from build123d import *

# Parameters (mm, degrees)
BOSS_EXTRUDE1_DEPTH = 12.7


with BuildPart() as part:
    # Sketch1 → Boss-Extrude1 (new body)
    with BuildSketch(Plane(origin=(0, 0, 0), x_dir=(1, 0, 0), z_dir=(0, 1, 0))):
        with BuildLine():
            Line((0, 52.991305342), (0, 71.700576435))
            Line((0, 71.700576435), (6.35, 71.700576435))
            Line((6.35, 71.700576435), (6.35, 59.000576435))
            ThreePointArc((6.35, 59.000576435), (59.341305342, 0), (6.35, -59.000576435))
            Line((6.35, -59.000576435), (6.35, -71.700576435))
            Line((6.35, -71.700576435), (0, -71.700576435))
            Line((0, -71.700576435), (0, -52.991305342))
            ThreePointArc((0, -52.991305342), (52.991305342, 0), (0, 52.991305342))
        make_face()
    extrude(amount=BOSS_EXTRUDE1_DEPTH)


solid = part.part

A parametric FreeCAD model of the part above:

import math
import FreeCAD as App
import Part
import Sketcher
Q = App.Units.Quantity

doc = App.newDocument("Part")
body = doc.addObject("PartDesign::Body", "Body")

# Sketch on XZ plane
sketch1 = doc.addObject("Sketcher::SketchObject", "Sketch")
body.addObject(sketch1)
sketch1.AttachmentSupport = (doc.XZ_Plane, [""])
sketch1.MapMode = "FlatFace"
sketch1.addGeometry([
    Part.LineSegment(App.Vector(0, -72, 0), App.Vector(0, -53, 0)),  # 0
    Part.ArcOfCircle(Part.Circle(App.Vector(0, 0, 0), App.Vector(0, 0, 1), 53), math.radians(-90), math.radians(90)),  # 1
    Part.LineSegment(App.Vector(0, 53, 0), App.Vector(0, 72, 0)),  # 2
    Part.LineSegment(App.Vector(0, 72, 0), App.Vector(6, 72, 0)),  # 3
    Part.LineSegment(App.Vector(6, 72, 0), App.Vector(6, 59, 0)),  # 4
    Part.ArcOfCircle(Part.Circle(App.Vector(0, 0, 0), App.Vector(0, 0, 1), 59), math.radians(-84), math.radians(84)),  # 5
    Part.LineSegment(App.Vector(6, -59, 0), App.Vector(6, -72, 0)),  # 6
    Part.LineSegment(App.Vector(6, -72, 0), App.Vector(0, -72, 0)),  # 7
], False)
sketch1.addConstraint([
    Sketcher.Constraint("Coincident", 0, 2, 1, 1),
    Sketcher.Constraint("Coincident", 1, 2, 2, 1),
    Sketcher.Constraint("Coincident", 2, 2, 3, 1),
    Sketcher.Constraint("Coincident", 3, 2, 4, 1),
    Sketcher.Constraint("Coincident", 4, 2, 5, 2),
    Sketcher.Constraint("Coincident", 5, 1, 6, 1),
    Sketcher.Constraint("Coincident", 6, 2, 7, 1),
    Sketcher.Constraint("Coincident", 7, 2, 0, 1),
    Sketcher.Constraint("Vertical", 0),
    Sketcher.Constraint("Vertical", 2),
    Sketcher.Constraint("Horizontal", 3),
    Sketcher.Constraint("Vertical", 4),
    Sketcher.Constraint("Vertical", 6),
    Sketcher.Constraint("Horizontal", 7),
    Sketcher.Constraint("Coincident", 1, 3, -1, 1),
    Sketcher.Constraint("Coincident", 5, 3, -1, 1),
    Sketcher.Constraint("Symmetric", 2, 2, 7, 2, -1, 1),
    Sketcher.Constraint("PointOnObject", 0, 2, -2),
    Sketcher.Constraint("Vertical", 4, 2, 5, 1),
    Sketcher.Constraint("DistanceY", 4, 2, 4, 1, Q("0.5 in")),
    Sketcher.Constraint("DistanceX", 3, 1, 3, 2, Q("0.25 in")),
    Sketcher.Constraint("Radius", 1, Q("52.991305 mm")),
    Sketcher.Constraint("Radius", 5, Q("59.341305 mm")),
])
pad1 = doc.addObject("PartDesign::Pad", "Pad")
body.addObject(pad1)
pad1.Profile = sketch1
pad1.Length = Q("0.5 in")
pad1.Reversed = True

doc.recompute()
